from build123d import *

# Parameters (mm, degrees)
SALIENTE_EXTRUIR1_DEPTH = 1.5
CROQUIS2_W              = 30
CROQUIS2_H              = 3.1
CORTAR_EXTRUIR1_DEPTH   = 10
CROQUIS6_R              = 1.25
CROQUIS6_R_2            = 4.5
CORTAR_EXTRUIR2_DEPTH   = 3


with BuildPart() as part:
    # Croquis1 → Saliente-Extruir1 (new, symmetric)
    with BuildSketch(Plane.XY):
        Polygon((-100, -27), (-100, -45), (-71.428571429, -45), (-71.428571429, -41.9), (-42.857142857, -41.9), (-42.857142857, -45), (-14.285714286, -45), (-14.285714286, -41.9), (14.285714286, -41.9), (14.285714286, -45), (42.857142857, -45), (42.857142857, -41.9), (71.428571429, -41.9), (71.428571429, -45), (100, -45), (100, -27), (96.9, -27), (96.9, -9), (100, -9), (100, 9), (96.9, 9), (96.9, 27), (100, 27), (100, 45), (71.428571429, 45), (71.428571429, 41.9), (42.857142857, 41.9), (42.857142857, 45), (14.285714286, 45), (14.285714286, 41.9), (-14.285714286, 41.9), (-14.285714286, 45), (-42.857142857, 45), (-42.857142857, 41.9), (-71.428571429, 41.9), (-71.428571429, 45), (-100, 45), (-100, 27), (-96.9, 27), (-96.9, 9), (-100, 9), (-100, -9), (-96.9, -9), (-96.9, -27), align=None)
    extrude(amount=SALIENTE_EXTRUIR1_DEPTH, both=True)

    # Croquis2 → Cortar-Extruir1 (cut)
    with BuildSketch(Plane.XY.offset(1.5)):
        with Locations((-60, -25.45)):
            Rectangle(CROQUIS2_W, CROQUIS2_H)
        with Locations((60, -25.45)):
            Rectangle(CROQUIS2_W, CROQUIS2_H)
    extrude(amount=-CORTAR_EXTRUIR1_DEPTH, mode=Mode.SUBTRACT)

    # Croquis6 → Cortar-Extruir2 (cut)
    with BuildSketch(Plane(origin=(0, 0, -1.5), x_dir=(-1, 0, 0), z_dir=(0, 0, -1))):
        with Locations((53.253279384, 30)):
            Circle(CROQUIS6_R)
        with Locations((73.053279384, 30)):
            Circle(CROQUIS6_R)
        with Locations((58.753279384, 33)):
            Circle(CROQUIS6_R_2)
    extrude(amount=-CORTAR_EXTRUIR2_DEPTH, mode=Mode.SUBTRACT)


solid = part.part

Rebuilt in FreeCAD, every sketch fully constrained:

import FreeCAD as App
import Part
import Sketcher
Q = App.Units.Quantity

doc = App.newDocument("Part")
body = doc.addObject("PartDesign::Body", "Body")

# Sketch on XY plane
sketch1 = body.newObject("Sketcher::SketchObject", "Sketch")
sketch1.AttachmentSupport = (doc.getObject("XY_Plane"), [""])
sketch1.MapMode = "FlatFace"
sketch1.addGeometry(Part.LineSegment(App.Vector(-100, -27, 0), App.Vector(-100, -45, 0)), False)
sketch1.addGeometry(Part.LineSegment(App.Vector(-100, -45, 0), App.Vector(-71.428571, -45, 0)), False)
sketch1.addGeometry(Part.LineSegment(App.Vector(-71.428571, -45, 0), App.Vector(-71.428571, -41.9, 0)), False)
sketch1.addGeometry(Part.LineSegment(App.Vector(-71.428571, -41.9, 0), App.Vector(-42.857143, -41.9, 0)), False)
sketch1.addGeometry(Part.LineSegment(App.Vector(-42.857143, -41.9, 0), App.Vector(-42.857143, -45, 0)), False)
sketch1.addGeometry(Part.LineSegment(App.Vector(-42.857143, -45, 0), App.Vector(-14.285714, -45, 0)), False)
sketch1.addGeometry(Part.LineSegment(App.Vector(-14.285714, -45, 0), App.Vector(-14.285714, -41.9, 0)), False)
sketch1.addGeometry(Part.LineSegment(App.Vector(-14.285714, -41.9, 0), App.Vector(14.285714, -41.9, 0)), False)
sketch1.addGeometry(Part.LineSegment(App.Vector(14.285714, -41.9, 0), App.Vector(14.285714, -45, 0)), False)
sketch1.addGeometry(Part.LineSegment(App.Vector(14.285714, -45, 0), App.Vector(42.857143, -45, 0)), False)
sketch1.addGeometry(Part.LineSegment(App.Vector(42.857143, -45, 0), App.Vector(42.857143, -41.9, 0)), False)
sketch1.addGeometry(Part.LineSegment(App.Vector(42.857143, -41.9, 0), App.Vector(71.428571, -41.9, 0)), False)
sketch1.addGeometry(Part.LineSegment(App.Vector(71.428571, -41.9, 0), App.Vector(71.428571, -45, 0)), False)
sketch1.addGeometry(Part.LineSegment(App.Vector(71.428571, -45, 0), App.Vector(100, -45, 0)), False)
sketch1.addGeometry(Part.LineSegment(App.Vector(100, -45, 0), App.Vector(100, -27, 0)), False)
sketch1.addGeometry(Part.LineSegment(App.Vector(100, -27, 0), App.Vector(96.9, -27, 0)), False)
sketch1.addGeometry(Part.LineSegment(App.Vector(96.9, -27, 0), App.Vector(96.9, -9, 0)), False)
sketch1.addGeometry(Part.LineSegment(App.Vector(96.9, -9, 0), App.Vector(100, -9, 0)), False)
sketch1.addGeometry(Part.LineSegment(App.Vector(100, -9, 0), App.Vector(100, 9, 0)), False)
sketch1.addGeometry(Part.LineSegment(App.Vector(100, 9, 0), App.Vector(96.9, 9, 0)), False)
sketch1.addGeometry(Part.LineSegment(App.Vector(96.9, 9, 0), App.Vector(96.9, 27, 0)), False)
sketch1.addGeometry(Part.LineSegment(App.Vector(96.9, 27, 0), App.Vector(100, 27, 0)), False)
sketch1.addGeometry(Part.LineSegment(App.Vector(100, 27, 0), App.Vector(100, 45, 0)), False)
sketch1.addGeometry(Part.LineSegment(App.Vector(100, 45, 0), App.Vector(71.428571, 45, 0)), False)
sketch1.addGeometry(Part.LineSegment(App.Vector(71.428571, 45, 0), App.Vector(71.428571, 41.9, 0)), False)
sketch1.addGeometry(Part.LineSegment(App.Vector(71.428571, 41.9, 0), App.Vector(42.857143, 41.9, 0)), False)
sketch1.addGeometry(Part.LineSegment(App.Vector(42.857143, 41.9, 0), App.Vector(42.857143, 45, 0)), False)
sketch1.addGeometry(Part.LineSegment(App.Vector(42.857143, 45, 0), App.Vector(14.285714, 45, 0)), False)
sketch1.addGeometry(Part.LineSegment(App.Vector(14.285714, 45, 0), App.Vector(14.285714, 41.9, 0)), False)
sketch1.addGeometry(Part.LineSegment(App.Vector(14.285714, 41.9, 0), App.Vector(-14.285714, 41.9, 0)), False)
sketch1.addGeometry(Part.LineSegment(App.Vector(-14.285714, 41.9, 0), App.Vector(-14.285714, 45, 0)), False)
sketch1.addGeometry(Part.LineSegment(App.Vector(-14.285714, 45, 0), App.Vector(-42.857143, 45, 0)), False)
sketch1.addGeometry(Part.LineSegment(App.Vector(-42.857143, 45, 0), App.Vector(-42.857143, 41.9, 0)), False)
sketch1.addGeometry(Part.LineSegment(App.Vector(-42.857143, 41.9, 0), App.Vector(-71.428571, 41.9, 0)), False)
sketch1.addGeometry(Part.LineSegment(App.Vector(-71.428571, 41.9, 0), App.Vector(-71.428571, 45, 0)), False)
sketch1.addGeometry(Part.LineSegment(App.Vector(-71.428571, 45, 0), App.Vector(-100, 45, 0)), False)
sketch1.addGeometry(Part.LineSegment(App.Vector(-100, 45, 0), App.Vector(-100, 27, 0)), False)
sketch1.addGeometry(Part.LineSegment(App.Vector(-100, 27, 0), App.Vector(-96.9, 27, 0)), False)
sketch1.addGeometry(Part.LineSegment(App.Vector(-96.9, 27, 0), App.Vector(-96.9, 9, 0)), False)
sketch1.addGeometry(Part.LineSegment(App.Vector(-96.9, 9, 0), App.Vector(-100, 9, 0)), False)
sketch1.addGeometry(Part.LineSegment(App.Vector(-100, 9, 0), App.Vector(-100, -9, 0)), False)
sketch1.addGeometry(Part.LineSegment(App.Vector(-100, -9, 0), App.Vector(-96.9, -9, 0)), False)
sketch1.addGeometry(Part.LineSegment(App.Vector(-96.9, -9, 0), App.Vector(-96.9, -27, 0)), False)
sketch1.addGeometry(Part.LineSegment(App.Vector(-96.9, -27, 0), App.Vector(-100, -27, 0)), False)
sketch1.addConstraint(Sketcher.Constraint("Coincident", 0, 2, 1, 1))
sketch1.addConstraint(Sketcher.Constraint("Coincident", 1, 2, 2, 1))
sketch1.addConstraint(Sketcher.Constraint("Coincident", 2, 2, 3, 1))
sketch1.addConstraint(Sketcher.Constraint("Coincident", 3, 2, 4, 1))
sketch1.addConstraint(Sketcher.Constraint("Coincident", 4, 2, 5, 1))
sketch1.addConstraint(Sketcher.Constraint("Coincident", 5, 2, 6, 1))
sketch1.addConstraint(Sketcher.Constraint("Coincident", 6, 2, 7, 1))
sketch1.addConstraint(Sketcher.Constraint("Coincident", 7, 2, 8, 1))
sketch1.addConstraint(Sketcher.Constraint("Coincident", 8, 2, 9, 1))
sketch1.addConstraint(Sketcher.Constraint("Coincident", 9, 2, 10, 1))
sketch1.addConstraint(Sketcher.Constraint("Coincident", 10, 2, 11, 1))
sketch1.addConstraint(Sketcher.Constraint("Coincident", 11, 2, 12, 1))
sketch1.addConstraint(Sketcher.Constraint("Coincident", 12, 2, 13, 1))
sketch1.addConstraint(Sketcher.Constraint("Coincident", 13, 2, 14, 1))
sketch1.addConstraint(Sketcher.Constraint("Coincident", 14, 2, 15, 1))
sketch1.addConstraint(Sketcher.Constraint("Coincident", 15, 2, 16, 1))
sketch1.addConstraint(Sketcher.Constraint("Coincident", 16, 2, 17, 1))
sketch1.addConstraint(Sketcher.Constraint("Coincident", 17, 2, 18, 1))
sketch1.addConstraint(Sketcher.Constraint("Coincident", 18, 2, 19, 1))
sketch1.addConstraint(Sketcher.Constraint("Coincident", 19, 2, 20, 1))
sketch1.addConstraint(Sketcher.Constraint("Coincident", 20, 2, 21, 1))
sketch1.addConstraint(Sketcher.Constraint("Coincident", 21, 2, 22, 1))
sketch1.addConstraint(Sketcher.Constraint("Coincident", 22, 2, 23, 1))
sketch1.addConstraint(Sketcher.Constraint("Coincident", 23, 2, 24, 1))
sketch1.addConstraint(Sketcher.Constraint("Coincident", 24, 2, 25, 1))
sketch1.addConstraint(Sketcher.Constraint("Coincident", 25, 2, 26, 1))
sketch1.addConstraint(Sketcher.Constraint("Coincident", 26, 2, 27, 1))
sketch1.addConstraint(Sketcher.Constraint("Coincident", 27, 2, 28, 1))
sketch1.addConstraint(Sketcher.Constraint("Coincident", 28, 2, 29, 1))
sketch1.addConstraint(Sketcher.Constraint("Coincident", 29, 2, 30, 1))
sketch1.addConstraint(Sketcher.Constraint("Coincident", 30, 2, 31, 1))
sketch1.addConstraint(Sketcher.Constraint("Coincident", 31, 2, 32, 1))
sketch1.addConstraint(Sketcher.Constraint("Coincident", 32, 2, 33, 1))
sketch1.addConstraint(Sketcher.Constraint("Coincident", 33, 2, 34, 1))
sketch1.addConstraint(Sketcher.Constraint("Coincident", 34, 2, 35, 1))
sketch1.addConstraint(Sketcher.Constraint("Coincident", 35, 2, 36, 1))
sketch1.addConstraint(Sketcher.Constraint("Coincident", 36, 2, 37, 1))
sketch1.addConstraint(Sketcher.Constraint("Coincident", 37, 2, 38, 1))
sketch1.addConstraint(Sketcher.Constraint("Coincident", 38, 2, 39, 1))
sketch1.addConstraint(Sketcher.Constraint("Coincident", 39, 2, 40, 1))
sketch1.addConstraint(Sketcher.Constraint("Coincident", 40, 2, 41, 1))
sketch1.addConstraint(Sketcher.Constraint("Coincident", 41, 2, 42, 1))
sketch1.addConstraint(Sketcher.Constraint("Coincident", 42, 2, 43, 1))
sketch1.addConstraint(Sketcher.Constraint("Coincident", 43, 2, 0, 1))
sketch1.addConstraint(Sketcher.Constraint("Vertical", 0))
sketch1.addConstraint(Sketcher.Constraint("Horizontal", 1))
sketch1.addConstraint(Sketcher.Constraint("Vertical", 2))
sketch1.addConstraint(Sketcher.Constraint("Horizontal", 3))
sketch1.addConstraint(Sketcher.Constraint("Vertical", 4))
sketch1.addConstraint(Sketcher.Constraint("Horizontal", 5))
sketch1.addConstraint(Sketcher.Constraint("Vertical", 6))
sketch1.addConstraint(Sketcher.Constraint("Horizontal", 7))
sketch1.addConstraint(Sketcher.Constraint("Vertical", 8))
sketch1.addConstraint(Sketcher.Constraint("Horizontal", 9))
sketch1.addConstraint(Sketcher.Constraint("Vertical", 10))
sketch1.addConstraint(Sketcher.Constraint("Horizontal", 11))
sketch1.addConstraint(Sketcher.Constraint("Vertical", 12))
sketch1.addConstraint(Sketcher.Constraint("Horizontal", 13))
sketch1.addConstraint(Sketcher.Constraint("Vertical", 14))
sketch1.addConstraint(Sketcher.Constraint("Horizontal", 15))
sketch1.addConstraint(Sketcher.Constraint("Vertical", 16))
sketch1.addConstraint(Sketcher.Constraint("Horizontal", 17))
sketch1.addConstraint(Sketcher.Constraint("Vertical", 18))
sketch1.addConstraint(Sketcher.Constraint("Horizontal", 19))
sketch1.addConstraint(Sketcher.Constraint("Vertical", 20))
sketch1.addConstraint(Sketcher.Constraint("Horizontal", 21))
sketch1.addConstraint(Sketcher.Constraint("Vertical", 22))
sketch1.addConstraint(Sketcher.Constraint("Horizontal", 23))
sketch1.addConstraint(Sketcher.Constraint("Vertical", 24))
sketch1.addConstraint(Sketcher.Constraint("Horizontal", 25))
sketch1.addConstraint(Sketcher.Constraint("Vertical", 26))
sketch1.addConstraint(Sketcher.Constraint("Horizontal", 27))
sketch1.addConstraint(Sketcher.Constraint("Vertical", 28))
sketch1.addConstraint(Sketcher.Constraint("Horizontal", 29))
sketch1.addConstraint(Sketcher.Constraint("Vertical", 30))
sketch1.addConstraint(Sketcher.Constraint("Horizontal", 31))
sketch1.addConstraint(Sketcher.Constraint("Vertical", 32))
sketch1.addConstraint(Sketcher.Constraint("Horizontal", 33))
sketch1.addConstraint(Sketcher.Constraint("Vertical", 34))
sketch1.addConstraint(Sketcher.Constraint("Horizontal", 35))
sketch1.addConstraint(Sketcher.Constraint("Vertical", 36))
sketch1.addConstraint(Sketcher.Constraint("Horizontal", 37))
sketch1.addConstraint(Sketcher.Constraint("Vertical", 38))
sketch1.addConstraint(Sketcher.Constraint("Horizontal", 39))
sketch1.addConstraint(Sketcher.Constraint("Vertical", 40))
sketch1.addConstraint(Sketcher.Constraint("Horizontal", 41))
sketch1.addConstraint(Sketcher.Constraint("Vertical", 42))
sketch1.addConstraint(Sketcher.Constraint("Horizontal", 43))
sketch1.addConstraint(Sketcher.Constraint("Symmetric", 0, 2, 22, 2, -1, 1))
sketch1.addConstraint(Sketcher.Constraint("Symmetric", 2, 2, 24, 2, -1, 1))
sketch1.addConstraint(Sketcher.Constraint("Symmetric", 4, 2, 26, 2, -1, 1))
sketch1.addConstraint(Sketcher.Constraint("Symmetric", 6, 2, 28, 2, -1, 1))
sketch1.addConstraint(Sketcher.Constraint("Symmetric", 8, 2, 30, 2, -1, 1))
sketch1.addConstraint(Sketcher.Constraint("Symmetric", 10, 2, 32, 2, -1, 1))
sketch1.addConstraint(Sketcher.Constraint("Symmetric", 12, 2, 34, 2, -1, 1))
sketch1.addConstraint(Sketcher.Constraint("Symmetric", 14, 2, 36, 2, -1, 1))
sketch1.addConstraint(Sketcher.Constraint("Symmetric", 16, 2, 38, 2, -1, 1))
sketch1.addConstraint(Sketcher.Constraint("Symmetric", 18, 2, 40, 2, -1, 1))
sketch1.addConstraint(Sketcher.Constraint("Symmetric", 20, 2, 42, 2, -1, 1))
sketch1.addConstraint(Sketcher.Constraint("Symmetric", 5, 2, 8, 2, -2))
sketch1.addConstraint(Sketcher.Constraint("Symmetric", 3, 2, 10, 2, -2))
sketch1.addConstraint(Sketcher.Constraint("Symmetric", 1, 2, 12, 2, -2))
sketch1.addConstraint(Sketcher.Constraint("Symmetric", 21, 2, 36, 2, -2))
sketch1.addConstraint(Sketcher.Constraint("Symmetric", 19, 2, 38, 2, -2))
sketch1.addConstraint(Sketcher.Constraint("Horizontal", 1, 2, 4, 2))
sketch1.addConstraint(Sketcher.Constraint("Horizontal", 3, 2, 6, 2))
sketch1.addConstraint(Sketcher.Constraint("Vertical", 14, 2, 17, 2))
sketch1.addConstraint(Sketcher.Constraint("Equal", 1, 3))
sketch1.addConstraint(Sketcher.Constraint("Equal", 3, 5))
sketch1.addConstraint(Sketcher.Constraint("Equal", 5, 7))
sketch1.addConstraint(Sketcher.Constraint("Equal", 43, 2))
sketch1.addConstraint(Sketcher.Constraint("Equal", 14, 16))
sketch1.addConstraint(Sketcher.Constraint("Equal", 16, 18))
sketch1.addConstraint(Sketcher.Constraint("DistanceY", 0, 2, 0, 1, Q("18 mm")))
sketch1.addConstraint(Sketcher.Constraint("DistanceX", 15, 2, 15, 1, Q("3.1 mm")))
sketch1.addConstraint(Sketcher.Constraint("DistanceX", 0, 2, -1, 1, Q("100 mm")))
pad1 = body.newObject("PartDesign::Pad", "Pad")
pad1.Profile = sketch1
pad1.Length = 3
pad1.Midplane = True

# Sketch on XY plane
sketch2 = body.newObject("Sketcher::SketchObject", "Sketch001")
sketch2.AttachmentSupport = (doc.getObject("XY_Plane"), [""])
sketch2.MapMode = "FlatFace"
sketch2.AttachmentOffset = App.Placement(App.Vector(0, 0, 1.5), App.Rotation())
sketch2.addGeometry(Part.LineSegment(App.Vector(-75, -23.9, 0), App.Vector(-75, -27, 0)), False)
sketch2.addGeometry(Part.LineSegment(App.Vector(-75, -27, 0), App.Vector(-45, -27, 0)), False)
sketch2.addGeometry(Part.LineSegment(App.Vector(-45, -27, 0), App.Vector(-45, -23.9, 0)), False)
sketch2.addGeometry(Part.LineSegment(App.Vector(-45, -23.9, 0), App.Vector(-75, -23.9, 0)), False)
sketch2.addGeometry(Part.LineSegment(App.Vector(45, -23.9, 0), App.Vector(45, -27, 0)), False)
sketch2.addGeometry(Part.LineSegment(App.Vector(45, -27, 0), App.Vector(75, -27, 0)), False)
sketch2.addGeometry(Part.LineSegment(App.Vector(75, -27, 0), App.Vector(75, -23.9, 0)), False)
sketch2.addGeometry(Part.LineSegment(App.Vector(75, -23.9, 0), App.Vector(45, -23.9, 0)), False)
sketch2.addConstraint(Sketcher.Constraint("Coincident", 0, 2, 1, 1))
sketch2.addConstraint(Sketcher.Constraint("Coincident", 1, 2, 2, 1))
sketch2.addConstraint(Sketcher.Constraint("Coincident", 2, 2, 3, 1))
sketch2.addConstraint(Sketcher.Constraint("Coincident", 3, 2, 0, 1))
sketch2.addConstraint(Sketcher.Constraint("Coincident", 4, 2, 5, 1))
sketch2.addConstraint(Sketcher.Constraint("Coincident", 5, 2, 6, 1))
sketch2.addConstraint(Sketcher.Constraint("Coincident", 6, 2, 7, 1))
sketch2.addConstraint(Sketcher.Constraint("Coincident", 7, 2, 4, 1))
sketch2.addConstraint(Sketcher.Constraint("Vertical", 0))
sketch2.addConstraint(Sketcher.Constraint("Horizontal", 1))
sketch2.addConstraint(Sketcher.Constraint("Vertical", 2))
sketch2.addConstraint(Sketcher.Constraint("Horizontal", 3))
sketch2.addConstraint(Sketcher.Constraint("Vertical", 4))
sketch2.addConstraint(Sketcher.Constraint("Horizontal", 5))
sketch2.addConstraint(Sketcher.Constraint("Vertical", 6))
sketch2.addConstraint(Sketcher.Constraint("Horizontal", 7))
sketch2.addConstraint(Sketcher.Constraint("Symmetric", 1, 2, 4, 2, -2))
sketch2.addConstraint(Sketcher.Constraint("Symmetric", 3, 2, 6, 2, -2))
sketch2.addConstraint(Sketcher.Constraint("DistanceX", 1, 1, 1, 2, Q("30 mm")))
sketch2.addConstraint(Sketcher.Constraint("DistanceY", 0, 2, 0, 1, Q("3.1 mm")))
sketch2.addConstraint(Sketcher.Constraint("DistanceX", 0, 2, -1, 1, Q("75 mm")))
sketch2.addConstraint(Sketcher.Constraint("DistanceY", 0, 2, -1, 1, Q("27 mm")))
pocket1 = body.newObject("PartDesign::Pocket", "Pocket")
pocket1.Profile = sketch2
pocket1.Length = 10

# Sketch on XY plane
sketch3 = body.newObject("Sketcher::SketchObject", "Sketch002")
sketch3.AttachmentSupport = (doc.getObject("XY_Plane"), [""])
sketch3.MapMode = "FlatFace"
sketch3.AttachmentOffset = App.Placement(App.Vector(0, 0, -1.5), App.Rotation())
sketch3.addGeometry(Part.Circle(App.Vector(-53.253279, 30, 0), App.Vector(0, 0, 1), 1.25), False)
sketch3.addGeometry(Part.Circle(App.Vector(-73.053279, 30, 0), App.Vector(0, 0, 1), 1.25), False)
sketch3.addGeometry(Part.Circle(App.Vector(-58.753279, 33, 0), App.Vector(0, 0, 1), 4.5), False)
sketch3.addConstraint(Sketcher.Constraint("Equal", 0, 1))
sketch3.addConstraint(Sketcher.Constraint("Horizontal", 0, 3, 1, 3))
sketch3.addConstraint(Sketcher.Constraint("Diameter", 2, Q("9 mm")))
sketch3.addConstraint(Sketcher.Constraint("Diameter", 0, Q("2.5 mm")))
sketch3.addConstraint(Sketcher.Constraint("DistanceY", -1, 1, 0, 3, Q("30 mm")))
sketch3.addConstraint(Sketcher.Constraint("DistanceY", -1, 1, 2, 3, Q("33 mm")))
sketch3.addConstraint(Sketcher.Constraint("DistanceX", 1, 3, 0, 3, Q("19.8 mm")))
sketch3.addConstraint(Sketcher.Constraint("DistanceX", 2, 3, 0, 3, Q("5.5 mm")))
sketch3.addConstraint(Sketcher.Constraint("DistanceX", 0, 3, -1, 1, Q("53.253279 mm")))
pocket2 = body.newObject("PartDesign::Pocket", "Pocket001")
pocket2.Profile = sketch3
pocket2.Length = 3
pocket2.Reversed = True

doc.recompute()
